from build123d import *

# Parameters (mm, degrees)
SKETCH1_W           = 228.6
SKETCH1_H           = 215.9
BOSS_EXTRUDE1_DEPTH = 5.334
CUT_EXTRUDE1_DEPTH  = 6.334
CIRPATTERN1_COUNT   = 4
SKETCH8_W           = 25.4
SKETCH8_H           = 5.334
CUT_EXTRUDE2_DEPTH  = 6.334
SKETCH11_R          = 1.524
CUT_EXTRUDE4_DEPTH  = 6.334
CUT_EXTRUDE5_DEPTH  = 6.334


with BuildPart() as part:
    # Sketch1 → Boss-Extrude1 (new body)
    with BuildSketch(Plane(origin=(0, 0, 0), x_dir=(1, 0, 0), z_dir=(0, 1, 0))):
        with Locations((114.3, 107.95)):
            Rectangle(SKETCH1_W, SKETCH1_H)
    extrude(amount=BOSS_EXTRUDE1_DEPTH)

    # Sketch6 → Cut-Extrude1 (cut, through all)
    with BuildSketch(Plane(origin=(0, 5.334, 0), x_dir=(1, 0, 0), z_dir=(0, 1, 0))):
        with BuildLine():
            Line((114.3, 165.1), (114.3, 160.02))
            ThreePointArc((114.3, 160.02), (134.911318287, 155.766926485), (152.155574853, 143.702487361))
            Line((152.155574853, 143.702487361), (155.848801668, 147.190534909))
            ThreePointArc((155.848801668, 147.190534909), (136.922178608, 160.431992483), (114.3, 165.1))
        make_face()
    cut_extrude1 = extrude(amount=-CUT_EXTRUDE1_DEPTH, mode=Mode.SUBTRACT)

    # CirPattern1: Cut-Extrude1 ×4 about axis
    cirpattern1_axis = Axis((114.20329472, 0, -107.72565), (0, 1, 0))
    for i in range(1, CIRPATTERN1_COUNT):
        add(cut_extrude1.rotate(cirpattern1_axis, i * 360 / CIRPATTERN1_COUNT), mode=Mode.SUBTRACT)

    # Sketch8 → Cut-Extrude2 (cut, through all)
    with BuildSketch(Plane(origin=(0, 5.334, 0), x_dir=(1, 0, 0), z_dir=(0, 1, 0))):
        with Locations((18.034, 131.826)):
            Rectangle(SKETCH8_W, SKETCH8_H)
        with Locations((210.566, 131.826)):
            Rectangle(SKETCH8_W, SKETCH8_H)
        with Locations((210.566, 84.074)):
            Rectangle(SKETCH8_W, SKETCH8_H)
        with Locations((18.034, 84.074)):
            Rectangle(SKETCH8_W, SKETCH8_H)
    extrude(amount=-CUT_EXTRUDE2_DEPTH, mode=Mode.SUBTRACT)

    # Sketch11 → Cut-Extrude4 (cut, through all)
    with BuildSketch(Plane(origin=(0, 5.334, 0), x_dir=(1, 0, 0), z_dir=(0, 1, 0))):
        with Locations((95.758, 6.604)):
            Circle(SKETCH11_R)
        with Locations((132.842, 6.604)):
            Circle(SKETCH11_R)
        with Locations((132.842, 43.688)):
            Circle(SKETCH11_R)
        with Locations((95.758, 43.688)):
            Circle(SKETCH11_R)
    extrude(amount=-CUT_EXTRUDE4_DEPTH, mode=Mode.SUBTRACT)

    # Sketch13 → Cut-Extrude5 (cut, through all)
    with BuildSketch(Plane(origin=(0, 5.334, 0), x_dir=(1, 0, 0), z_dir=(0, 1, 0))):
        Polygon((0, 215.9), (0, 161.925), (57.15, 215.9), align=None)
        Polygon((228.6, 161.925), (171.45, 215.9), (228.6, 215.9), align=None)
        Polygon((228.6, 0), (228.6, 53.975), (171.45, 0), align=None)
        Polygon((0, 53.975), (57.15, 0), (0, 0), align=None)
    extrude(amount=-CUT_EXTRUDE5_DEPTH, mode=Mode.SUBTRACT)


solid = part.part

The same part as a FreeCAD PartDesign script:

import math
import FreeCAD as App
import Part
import Sketcher
from FreeCAD import Vector
Q = App.Units.Quantity

doc = App.newDocument("Part")
body = doc.addObject("PartDesign::Body", "Body")

# Sketch on XZ plane
sketch1 = body.newObject("Sketcher::SketchObject", "Sketch")
sketch1.AttachmentSupport = (doc.getObject("XZ_Plane"), [""])
sketch1.MapMode = "FlatFace"
sketch1.addGeometry(Part.LineSegment(Vector(0, -216, 0), Vector(0, 0, 0)), False)
sketch1.addGeometry(Part.LineSegment(Vector(0, 0, 0), Vector(229, 0, 0)), False)
sketch1.addGeometry(Part.LineSegment(Vector(229, 0, 0), Vector(229, -216, 0)), False)
sketch1.addGeometry(Part.LineSegment(Vector(229, -216, 0), Vector(0, -216, 0)), False)
sketch1.addConstraint(Sketcher.Constraint("Coincident", 0, 2, 1, 1))
sketch1.addConstraint(Sketcher.Constraint("Coincident", 1, 2, 2, 1))
sketch1.addConstraint(Sketcher.Constraint("Coincident", 2, 2, 3, 1))
sketch1.addConstraint(Sketcher.Constraint("Coincident", 3, 2, 0, 1))
sketch1.addConstraint(Sketcher.Constraint("Vertical", 0))
sketch1.addConstraint(Sketcher.Constraint("Horizontal", 1))
sketch1.addConstraint(Sketcher.Constraint("Vertical", 2))
sketch1.addConstraint(Sketcher.Constraint("Horizontal", 3))
sketch1.addConstraint(Sketcher.Constraint("Coincident", 0, 2, -1, 1))
sketch1.addConstraint(Sketcher.Constraint("DistanceX", 1, 1, 1, 2, Q("9 in")))
sketch1.addConstraint(Sketcher.Constraint("DistanceY", 0, 1, 0, 2, Q("8.5 in")))
pad1 = body.newObject("PartDesign::Pad", "Pad")
pad1.Profile = sketch1
pad1.Length = Q("0.21 in")
pad1.Reversed = True

# Sketch on XZ plane
sketch2 = body.newObject("Sketcher::SketchObject", "Sketch001")
sketch2.AttachmentSupport = (doc.getObject("XZ_Plane"), [""])
sketch2.MapMode = "FlatFace"
sketch2.AttachmentOffset = App.Placement(Vector(0, 0, -0.21 * 25.4), App.Rotation())
sketch2.addGeometry(Part.LineSegment(Vector(114, -165, 0), Vector(114, -160, 0)), False)
sketch2.addGeometry(Part.ArcOfCircle(Part.Circle(Vector(114, -108, 0), Vector(0, 0, 1), 52), math.radians(-90), math.radians(-43)), False)
sketch2.addGeometry(Part.LineSegment(Vector(152, -144, 0), Vector(156, -147, 0)), False)
sketch2.addGeometry(Part.ArcOfCircle(Part.Circle(Vector(114, -108, 0), Vector(0, 0, 1), 57), math.radians(-90), math.radians(-43)), False)
sketch2.addConstraint(Sketcher.Constraint("Coincident", 0, 2, 1, 1))
sketch2.addConstraint(Sketcher.Constraint("Coincident", 1, 2, 2, 1))
sketch2.addConstraint(Sketcher.Constraint("Coincident", 2, 2, 3, 2))
sketch2.addConstraint(Sketcher.Constraint("Coincident", 3, 1, 0, 1))
sketch2.addConstraint(Sketcher.Constraint("Vertical", 0))
sketch2.addConstraint(Sketcher.Constraint("Coincident", 3, 3, 1, 3))
sketch2.addConstraint(Sketcher.Constraint("Vertical", 3, 3, 0, 2))
sketch2.addConstraint(Sketcher.Constraint("Radius", 1, Q("2.05 in")))
sketch2.addConstraint(Sketcher.Constraint("Radius", 3, Q("2.25 in")))
sketch2.addConstraint(Sketcher.Constraint("DistanceX", -1, 1, 1, 3, Q("4.5 in")))
sketch2.addConstraint(Sketcher.Constraint("DistanceY", 0, 2, -1, 1, Q("6.3 in")))
sketch2.addConstraint(Sketcher.Constraint("DistanceX", -1, 1, 2, 2, 155.848802))
sketch2.addConstraint(Sketcher.Constraint("DistanceX", -1, 1, 1, 2, 152.155575))
pocket1 = body.newObject("PartDesign::Pocket", "Pocket")
pocket1.Profile = sketch2
pocket1.Type = "ThroughAll"
pocket1.Reversed = True
doc.recompute()

datumline = body.newObject("PartDesign::Line", "DatumLine")
datumline.Placement = App.Placement(Vector(114.203295, 0, -107.72565), App.Rotation(Vector(0, 0, 1), Vector(0, 1, 0)))
polarpattern = body.newObject("PartDesign::PolarPattern", "PolarPattern")
polarpattern.Originals = [pocket1]
polarpattern.Axis = (datumline, [""])
polarpattern.Angle = 360
polarpattern.Occurrences = 4
body.Tip = polarpattern

# Sketch on XZ plane
sketch3 = body.newObject("Sketcher::SketchObject", "Sketch002")
sketch3.AttachmentSupport = (doc.getObject("XZ_Plane"), [""])
sketch3.MapMode = "FlatFace"
sketch3.AttachmentOffset = App.Placement(Vector(0, 0, -0.21 * 25.4), App.Rotation())
sketch3.addGeometry(Part.LineSegment(Vector(5, -134, 0), Vector(5, -129, 0)), False)
sketch3.addGeometry(Part.LineSegment(Vector(5, -129, 0), Vector(31, -129, 0)), False)
sketch3.addGeometry(Part.LineSegment(Vector(31, -129, 0), Vector(31, -134, 0)), False)
sketch3.addGeometry(Part.LineSegment(Vector(31, -134, 0), Vector(5, -134, 0)), False)
sketch3.addGeometry(Part.LineSegment(Vector(198, -134, 0), Vector(198, -129, 0)), False)
sketch3.addGeometry(Part.LineSegment(Vector(198, -129, 0), Vector(223, -129, 0)), False)
sketch3.addGeometry(Part.LineSegment(Vector(223, -129, 0), Vector(223, -134, 0)), False)
sketch3.addGeometry(Part.LineSegment(Vector(223, -134, 0), Vector(198, -134, 0)), False)
sketch3.addGeometry(Part.LineSegment(Vector(198, -87, 0), Vector(198, -81, 0)), False)
sketch3.addGeometry(Part.LineSegment(Vector(198, -81, 0), Vector(223, -81, 0)), False)
sketch3.addGeometry(Part.LineSegment(Vector(223, -81, 0), Vector(223, -87, 0)), False)
sketch3.addGeometry(Part.LineSegment(Vector(223, -87, 0), Vector(198, -87, 0)), False)
sketch3.addGeometry(Part.LineSegment(Vector(5, -87, 0), Vector(5, -81, 0)), False)
sketch3.addGeometry(Part.LineSegment(Vector(5, -81, 0), Vector(31, -81, 0)), False)
sketch3.addGeometry(Part.LineSegment(Vector(31, -81, 0), Vector(31, -87, 0)), False)
sketch3.addGeometry(Part.LineSegment(Vector(31, -87, 0), Vector(5, -87, 0)), False)
sketch3.addConstraint(Sketcher.Constraint("Coincident", 0, 2, 1, 1))
sketch3.addConstraint(Sketcher.Constraint("Coincident", 1, 2, 2, 1))
sketch3.addConstraint(Sketcher.Constraint("Coincident", 2, 2, 3, 1))
sketch3.addConstraint(Sketcher.Constraint("Coincident", 3, 2, 0, 1))
sketch3.addConstraint(Sketcher.Constraint("Coincident", 4, 2, 5, 1))
sketch3.addConstraint(Sketcher.Constraint("Coincident", 5, 2, 6, 1))
sketch3.addConstraint(Sketcher.Constraint("Coincident", 6, 2, 7, 1))
sketch3.addConstraint(Sketcher.Constraint("Coincident", 7, 2, 4, 1))
sketch3.addConstraint(Sketcher.Constraint("Coincident", 8, 2, 9, 1))
sketch3.addConstraint(Sketcher.Constraint("Coincident", 9, 2, 10, 1))
sketch3.addConstraint(Sketcher.Constraint("Coincident", 10, 2, 11, 1))
sketch3.addConstraint(Sketcher.Constraint("Coincident", 11, 2, 8, 1))
sketch3.addConstraint(Sketcher.Constraint("Coincident", 12, 2, 13, 1))
sketch3.addConstraint(Sketcher.Constraint("Coincident", 13, 2, 14, 1))
sketch3.addConstraint(Sketcher.Constraint("Coincident", 14, 2, 15, 1))
sketch3.addConstraint(Sketcher.Constraint("Coincident", 15, 2, 12, 1))
sketch3.addConstraint(Sketcher.Constraint("Vertical", 0))
sketch3.addConstraint(Sketcher.Constraint("Horizontal", 1))
sketch3.addConstraint(Sketcher.Constraint("Vertical", 2))
sketch3.addConstraint(Sketcher.Constraint("Horizontal", 3))
sketch3.addConstraint(Sketcher.Constraint("Vertical", 4))
sketch3.addConstraint(Sketcher.Constraint("Horizontal", 5))
sketch3.addConstraint(Sketcher.Constraint("Vertical", 6))
sketch3.addConstraint(Sketcher.Constraint("Horizontal", 7))
sketch3.addConstraint(Sketcher.Constraint("Vertical", 8))
sketch3.addConstraint(Sketcher.Constraint("Horizontal", 9))
sketch3.addConstraint(Sketcher.Constraint("Vertical", 10))
sketch3.addConstraint(Sketcher.Constraint("Horizontal", 11))
sketch3.addConstraint(Sketcher.Constraint("Vertical", 12))
sketch3.addConstraint(Sketcher.Constraint("Horizontal", 13))
sketch3.addConstraint(Sketcher.Constraint("Vertical", 14))
sketch3.addConstraint(Sketcher.Constraint("Horizontal", 15))
sketch3.addConstraint(Sketcher.Constraint("Horizontal", 1, 2, 4, 2))
sketch3.addConstraint(Sketcher.Constraint("Horizontal", 3, 2, 6, 2))
sketch3.addConstraint(Sketcher.Constraint("Horizontal", 9, 2, 12, 2))
sketch3.addConstraint(Sketcher.Constraint("Horizontal", 11, 2, 14, 2))
sketch3.addConstraint(Sketcher.Constraint("Vertical", 7, 2, 8, 2))
sketch3.addConstraint(Sketcher.Constraint("Vertical", 6, 2, 9, 2))
sketch3.addConstraint(Sketcher.Constraint("Vertical", 3, 2, 12, 2))
sketch3.addConstraint(Sketcher.Constraint("Vertical", 2, 2, 13, 2))
sketch3.addConstraint(Sketcher.Constraint("Equal", 3, 5))
sketch3.addConstraint(Sketcher.Constraint("Equal", 6, 8))
sketch3.addConstraint(Sketcher.Constraint("DistanceX", 1, 1, 1, 2, Q("1 in")))
sketch3.addConstraint(Sketcher.Constraint("DistanceY", 0, 1, 0, 2, Q("0.21 in")))
sketch3.addConstraint(Sketcher.Constraint("DistanceX", -1, 1, 0, 2, Q("0.21 in")))
sketch3.addConstraint(Sketcher.Constraint("DistanceX", -1, 1, 4, 2, Q("7.79 in")))
sketch3.addConstraint(Sketcher.Constraint("DistanceY", 4, 2, 8, 2, Q("1.88 in")))
sketch3.addConstraint(Sketcher.Constraint("DistanceY", 0, 2, -1, 1, Q("5.085 in")))
pocket2 = body.newObject("PartDesign::Pocket", "Pocket001")
pocket2.Profile = sketch3
pocket2.Type = "ThroughAll"
pocket2.Reversed = True

# Sketch on XZ plane
sketch4 = body.newObject("Sketcher::SketchObject", "Sketch003")
sketch4.AttachmentSupport = (doc.getObject("XZ_Plane"), [""])
sketch4.MapMode = "FlatFace"
sketch4.AttachmentOffset = App.Placement(Vector(0, 0, -0.21 * 25.4), App.Rotation())
sketch4.addGeometry(Part.Circle(Vector(95.8, -6.6, 0), Vector(0, 0, 1), 1.5), False)
sketch4.addGeometry(Part.Circle(Vector(132.8, -6.6, 0), Vector(0, 0, 1), 1.5), False)
sketch4.addGeometry(Part.Circle(Vector(132.8, -43.7, 0), Vector(0, 0, 1), 1.5), False)
sketch4.addGeometry(Part.Circle(Vector(95.8, -43.7, 0), Vector(0, 0, 1), 1.5), False)
sketch4.addConstraint(Sketcher.Constraint("Equal", 0, 1))
sketch4.addConstraint(Sketcher.Constraint("Equal", 1, 2))
sketch4.addConstraint(Sketcher.Constraint("Equal", 2, 3))
sketch4.addConstraint(Sketcher.Constraint("Horizontal", 0, 3, 1, 3))
sketch4.addConstraint(Sketcher.Constraint("Horizontal", 2, 3, 3, 3))
sketch4.addConstraint(Sketcher.Constraint("Vertical", 1, 3, 2, 3))
sketch4.addConstraint(Sketcher.Constraint("Vertical", 0, 3, 3, 3))
sketch4.addConstraint(Sketcher.Constraint("Diameter", 0, Q("0.12 in")))
sketch4.addConstraint(Sketcher.Constraint("DistanceX", -1, 1, 0, 3, Q("3.77 in")))
sketch4.addConstraint(Sketcher.Constraint("DistanceY", 0, 3, -1, 1, Q("0.26 in")))
sketch4.addConstraint(Sketcher.Constraint("DistanceX", -1, 1, 1, 3, Q("5.23 in")))
sketch4.addConstraint(Sketcher.Constraint("DistanceY", 2, 3, -1, 1, Q("1.72 in")))
pocket3 = body.newObject("PartDesign::Pocket", "Pocket002")
pocket3.Profile = sketch4
pocket3.Type = "ThroughAll"
pocket3.Reversed = True

# Sketch on XZ plane
sketch5 = body.newObject("Sketcher::SketchObject", "Sketch004")
sketch5.AttachmentSupport = (doc.getObject("XZ_Plane"), [""])
sketch5.MapMode = "FlatFace"
sketch5.AttachmentOffset = App.Placement(Vector(0, 0, -0.21 * 25.4), App.Rotation())
sketch5.addGeometry(Part.LineSegment(Vector(0, -216, 0), Vector(0, -162, 0)), False)
sketch5.addGeometry(Part.LineSegment(Vector(0, -162, 0), Vector(57, -216, 0)), False)
sketch5.addGeometry(Part.LineSegment(Vector(57, -216, 0), Vector(0, -216, 0)), False)
sketch5.addGeometry(Part.LineSegment(Vector(171, -216, 0), Vector(229, -162, 0)), False)
sketch5.addGeometry(Part.LineSegment(Vector(229, -162, 0), Vector(229, -216, 0)), False)
sketch5.addGeometry(Part.LineSegment(Vector(229, -216, 0), Vector(171, -216, 0)), False)
sketch5.addGeometry(Part.LineSegment(Vector(229, 0, 0), Vector(229, -54, 0)), False)
sketch5.addGeometry(Part.LineSegment(Vector(229, -54, 0), Vector(171, 0, 0)), False)
sketch5.addGeometry(Part.LineSegment(Vector(171, 0, 0), Vector(229, 0, 0)), False)
sketch5.addGeometry(Part.LineSegment(Vector(57, 0, 0), Vector(0, -54, 0)), False)
sketch5.addGeometry(Part.LineSegment(Vector(0, -54, 0), Vector(0, 0, 0)), False)
sketch5.addGeometry(Part.LineSegment(Vector(0, 0, 0), Vector(57, 0, 0)), False)
sketch5.addConstraint(Sketcher.Constraint("Coincident", 0, 2, 1, 1))
sketch5.addConstraint(Sketcher.Constraint("Coincident", 1, 2, 2, 1))
sketch5.addConstraint(Sketcher.Constraint("Coincident", 2, 2, 0, 1))
sketch5.addConstraint(Sketcher.Constraint("Coincident", 3, 2, 4, 1))
sketch5.addConstraint(Sketcher.Constraint("Coincident", 4, 2, 5, 1))
sketch5.addConstraint(Sketcher.Constraint("Coincident", 5, 2, 3, 1))
sketch5.addConstraint(Sketcher.Constraint("Coincident", 6, 2, 7, 1))
sketch5.addConstraint(Sketcher.Constraint("Coincident", 7, 2, 8, 1))
sketch5.addConstraint(Sketcher.Constraint("Coincident", 8, 2, 6, 1))
sketch5.addConstraint(Sketcher.Constraint("Coincident", 9, 2, 10, 1))
sketch5.addConstraint(Sketcher.Constraint("Coincident", 10, 2, 11, 1))
sketch5.addConstraint(Sketcher.Constraint("Coincident", 11, 2, 9, 1))
sketch5.addConstraint(Sketcher.Constraint("Vertical", 0))
sketch5.addConstraint(Sketcher.Constraint("Horizontal", 2))
sketch5.addConstraint(Sketcher.Constraint("Vertical", 4))
sketch5.addConstraint(Sketcher.Constraint("Horizontal", 5))
sketch5.addConstraint(Sketcher.Constraint("Vertical", 6))
sketch5.addConstraint(Sketcher.Constraint("Horizontal", 8))
sketch5.addConstraint(Sketcher.Constraint("Vertical", 10))
sketch5.addConstraint(Sketcher.Constraint("Horizontal", 11))
sketch5.addConstraint(Sketcher.Constraint("Coincident", 10, 2, -1, 1))
sketch5.addConstraint(Sketcher.Constraint("PointOnObject", 0, 2, -2))
sketch5.addConstraint(Sketcher.Constraint("PointOnObject", 7, 2, -1))
sketch5.addConstraint(Sketcher.Constraint("Parallel", 1, 7))
sketch5.addConstraint(Sketcher.Constraint("Parallel", 3, 9))
sketch5.addConstraint(Sketcher.Constraint("Horizontal", 0, 2, 3, 2))
sketch5.addConstraint(Sketcher.Constraint("Horizontal", 2, 2, 4, 2))
sketch5.addConstraint(Sketcher.Constraint("Horizontal", 6, 2, 9, 2))
sketch5.addConstraint(Sketcher.Constraint("Vertical", 4, 2, 6, 2))
sketch5.addConstraint(Sketcher.Constraint("Vertical", 5, 2, 7, 2))
sketch5.addConstraint(Sketcher.Constraint("Vertical", 1, 2, 11, 2))
sketch5.addConstraint(Sketcher.Constraint("DistanceX", -1, 1, 3, 2, Q("9 in")))
sketch5.addConstraint(Sketcher.Constraint("DistanceX", 2, 2, 2, 1, Q("2.25 in")))
sketch5.addConstraint(Sketcher.Constraint("DistanceY", 1, 2, -1, 1, Q("8.5 in")))
sketch5.addConstraint(Sketcher.Constraint("DistanceY", 0, 1, 0, 2, Q("2.125 in")))
pocket4 = body.newObject("PartDesign::Pocket", "Pocket003")
pocket4.Profile = sketch5
pocket4.Type = "ThroughAll"
pocket4.Reversed = True

doc.recompute()
